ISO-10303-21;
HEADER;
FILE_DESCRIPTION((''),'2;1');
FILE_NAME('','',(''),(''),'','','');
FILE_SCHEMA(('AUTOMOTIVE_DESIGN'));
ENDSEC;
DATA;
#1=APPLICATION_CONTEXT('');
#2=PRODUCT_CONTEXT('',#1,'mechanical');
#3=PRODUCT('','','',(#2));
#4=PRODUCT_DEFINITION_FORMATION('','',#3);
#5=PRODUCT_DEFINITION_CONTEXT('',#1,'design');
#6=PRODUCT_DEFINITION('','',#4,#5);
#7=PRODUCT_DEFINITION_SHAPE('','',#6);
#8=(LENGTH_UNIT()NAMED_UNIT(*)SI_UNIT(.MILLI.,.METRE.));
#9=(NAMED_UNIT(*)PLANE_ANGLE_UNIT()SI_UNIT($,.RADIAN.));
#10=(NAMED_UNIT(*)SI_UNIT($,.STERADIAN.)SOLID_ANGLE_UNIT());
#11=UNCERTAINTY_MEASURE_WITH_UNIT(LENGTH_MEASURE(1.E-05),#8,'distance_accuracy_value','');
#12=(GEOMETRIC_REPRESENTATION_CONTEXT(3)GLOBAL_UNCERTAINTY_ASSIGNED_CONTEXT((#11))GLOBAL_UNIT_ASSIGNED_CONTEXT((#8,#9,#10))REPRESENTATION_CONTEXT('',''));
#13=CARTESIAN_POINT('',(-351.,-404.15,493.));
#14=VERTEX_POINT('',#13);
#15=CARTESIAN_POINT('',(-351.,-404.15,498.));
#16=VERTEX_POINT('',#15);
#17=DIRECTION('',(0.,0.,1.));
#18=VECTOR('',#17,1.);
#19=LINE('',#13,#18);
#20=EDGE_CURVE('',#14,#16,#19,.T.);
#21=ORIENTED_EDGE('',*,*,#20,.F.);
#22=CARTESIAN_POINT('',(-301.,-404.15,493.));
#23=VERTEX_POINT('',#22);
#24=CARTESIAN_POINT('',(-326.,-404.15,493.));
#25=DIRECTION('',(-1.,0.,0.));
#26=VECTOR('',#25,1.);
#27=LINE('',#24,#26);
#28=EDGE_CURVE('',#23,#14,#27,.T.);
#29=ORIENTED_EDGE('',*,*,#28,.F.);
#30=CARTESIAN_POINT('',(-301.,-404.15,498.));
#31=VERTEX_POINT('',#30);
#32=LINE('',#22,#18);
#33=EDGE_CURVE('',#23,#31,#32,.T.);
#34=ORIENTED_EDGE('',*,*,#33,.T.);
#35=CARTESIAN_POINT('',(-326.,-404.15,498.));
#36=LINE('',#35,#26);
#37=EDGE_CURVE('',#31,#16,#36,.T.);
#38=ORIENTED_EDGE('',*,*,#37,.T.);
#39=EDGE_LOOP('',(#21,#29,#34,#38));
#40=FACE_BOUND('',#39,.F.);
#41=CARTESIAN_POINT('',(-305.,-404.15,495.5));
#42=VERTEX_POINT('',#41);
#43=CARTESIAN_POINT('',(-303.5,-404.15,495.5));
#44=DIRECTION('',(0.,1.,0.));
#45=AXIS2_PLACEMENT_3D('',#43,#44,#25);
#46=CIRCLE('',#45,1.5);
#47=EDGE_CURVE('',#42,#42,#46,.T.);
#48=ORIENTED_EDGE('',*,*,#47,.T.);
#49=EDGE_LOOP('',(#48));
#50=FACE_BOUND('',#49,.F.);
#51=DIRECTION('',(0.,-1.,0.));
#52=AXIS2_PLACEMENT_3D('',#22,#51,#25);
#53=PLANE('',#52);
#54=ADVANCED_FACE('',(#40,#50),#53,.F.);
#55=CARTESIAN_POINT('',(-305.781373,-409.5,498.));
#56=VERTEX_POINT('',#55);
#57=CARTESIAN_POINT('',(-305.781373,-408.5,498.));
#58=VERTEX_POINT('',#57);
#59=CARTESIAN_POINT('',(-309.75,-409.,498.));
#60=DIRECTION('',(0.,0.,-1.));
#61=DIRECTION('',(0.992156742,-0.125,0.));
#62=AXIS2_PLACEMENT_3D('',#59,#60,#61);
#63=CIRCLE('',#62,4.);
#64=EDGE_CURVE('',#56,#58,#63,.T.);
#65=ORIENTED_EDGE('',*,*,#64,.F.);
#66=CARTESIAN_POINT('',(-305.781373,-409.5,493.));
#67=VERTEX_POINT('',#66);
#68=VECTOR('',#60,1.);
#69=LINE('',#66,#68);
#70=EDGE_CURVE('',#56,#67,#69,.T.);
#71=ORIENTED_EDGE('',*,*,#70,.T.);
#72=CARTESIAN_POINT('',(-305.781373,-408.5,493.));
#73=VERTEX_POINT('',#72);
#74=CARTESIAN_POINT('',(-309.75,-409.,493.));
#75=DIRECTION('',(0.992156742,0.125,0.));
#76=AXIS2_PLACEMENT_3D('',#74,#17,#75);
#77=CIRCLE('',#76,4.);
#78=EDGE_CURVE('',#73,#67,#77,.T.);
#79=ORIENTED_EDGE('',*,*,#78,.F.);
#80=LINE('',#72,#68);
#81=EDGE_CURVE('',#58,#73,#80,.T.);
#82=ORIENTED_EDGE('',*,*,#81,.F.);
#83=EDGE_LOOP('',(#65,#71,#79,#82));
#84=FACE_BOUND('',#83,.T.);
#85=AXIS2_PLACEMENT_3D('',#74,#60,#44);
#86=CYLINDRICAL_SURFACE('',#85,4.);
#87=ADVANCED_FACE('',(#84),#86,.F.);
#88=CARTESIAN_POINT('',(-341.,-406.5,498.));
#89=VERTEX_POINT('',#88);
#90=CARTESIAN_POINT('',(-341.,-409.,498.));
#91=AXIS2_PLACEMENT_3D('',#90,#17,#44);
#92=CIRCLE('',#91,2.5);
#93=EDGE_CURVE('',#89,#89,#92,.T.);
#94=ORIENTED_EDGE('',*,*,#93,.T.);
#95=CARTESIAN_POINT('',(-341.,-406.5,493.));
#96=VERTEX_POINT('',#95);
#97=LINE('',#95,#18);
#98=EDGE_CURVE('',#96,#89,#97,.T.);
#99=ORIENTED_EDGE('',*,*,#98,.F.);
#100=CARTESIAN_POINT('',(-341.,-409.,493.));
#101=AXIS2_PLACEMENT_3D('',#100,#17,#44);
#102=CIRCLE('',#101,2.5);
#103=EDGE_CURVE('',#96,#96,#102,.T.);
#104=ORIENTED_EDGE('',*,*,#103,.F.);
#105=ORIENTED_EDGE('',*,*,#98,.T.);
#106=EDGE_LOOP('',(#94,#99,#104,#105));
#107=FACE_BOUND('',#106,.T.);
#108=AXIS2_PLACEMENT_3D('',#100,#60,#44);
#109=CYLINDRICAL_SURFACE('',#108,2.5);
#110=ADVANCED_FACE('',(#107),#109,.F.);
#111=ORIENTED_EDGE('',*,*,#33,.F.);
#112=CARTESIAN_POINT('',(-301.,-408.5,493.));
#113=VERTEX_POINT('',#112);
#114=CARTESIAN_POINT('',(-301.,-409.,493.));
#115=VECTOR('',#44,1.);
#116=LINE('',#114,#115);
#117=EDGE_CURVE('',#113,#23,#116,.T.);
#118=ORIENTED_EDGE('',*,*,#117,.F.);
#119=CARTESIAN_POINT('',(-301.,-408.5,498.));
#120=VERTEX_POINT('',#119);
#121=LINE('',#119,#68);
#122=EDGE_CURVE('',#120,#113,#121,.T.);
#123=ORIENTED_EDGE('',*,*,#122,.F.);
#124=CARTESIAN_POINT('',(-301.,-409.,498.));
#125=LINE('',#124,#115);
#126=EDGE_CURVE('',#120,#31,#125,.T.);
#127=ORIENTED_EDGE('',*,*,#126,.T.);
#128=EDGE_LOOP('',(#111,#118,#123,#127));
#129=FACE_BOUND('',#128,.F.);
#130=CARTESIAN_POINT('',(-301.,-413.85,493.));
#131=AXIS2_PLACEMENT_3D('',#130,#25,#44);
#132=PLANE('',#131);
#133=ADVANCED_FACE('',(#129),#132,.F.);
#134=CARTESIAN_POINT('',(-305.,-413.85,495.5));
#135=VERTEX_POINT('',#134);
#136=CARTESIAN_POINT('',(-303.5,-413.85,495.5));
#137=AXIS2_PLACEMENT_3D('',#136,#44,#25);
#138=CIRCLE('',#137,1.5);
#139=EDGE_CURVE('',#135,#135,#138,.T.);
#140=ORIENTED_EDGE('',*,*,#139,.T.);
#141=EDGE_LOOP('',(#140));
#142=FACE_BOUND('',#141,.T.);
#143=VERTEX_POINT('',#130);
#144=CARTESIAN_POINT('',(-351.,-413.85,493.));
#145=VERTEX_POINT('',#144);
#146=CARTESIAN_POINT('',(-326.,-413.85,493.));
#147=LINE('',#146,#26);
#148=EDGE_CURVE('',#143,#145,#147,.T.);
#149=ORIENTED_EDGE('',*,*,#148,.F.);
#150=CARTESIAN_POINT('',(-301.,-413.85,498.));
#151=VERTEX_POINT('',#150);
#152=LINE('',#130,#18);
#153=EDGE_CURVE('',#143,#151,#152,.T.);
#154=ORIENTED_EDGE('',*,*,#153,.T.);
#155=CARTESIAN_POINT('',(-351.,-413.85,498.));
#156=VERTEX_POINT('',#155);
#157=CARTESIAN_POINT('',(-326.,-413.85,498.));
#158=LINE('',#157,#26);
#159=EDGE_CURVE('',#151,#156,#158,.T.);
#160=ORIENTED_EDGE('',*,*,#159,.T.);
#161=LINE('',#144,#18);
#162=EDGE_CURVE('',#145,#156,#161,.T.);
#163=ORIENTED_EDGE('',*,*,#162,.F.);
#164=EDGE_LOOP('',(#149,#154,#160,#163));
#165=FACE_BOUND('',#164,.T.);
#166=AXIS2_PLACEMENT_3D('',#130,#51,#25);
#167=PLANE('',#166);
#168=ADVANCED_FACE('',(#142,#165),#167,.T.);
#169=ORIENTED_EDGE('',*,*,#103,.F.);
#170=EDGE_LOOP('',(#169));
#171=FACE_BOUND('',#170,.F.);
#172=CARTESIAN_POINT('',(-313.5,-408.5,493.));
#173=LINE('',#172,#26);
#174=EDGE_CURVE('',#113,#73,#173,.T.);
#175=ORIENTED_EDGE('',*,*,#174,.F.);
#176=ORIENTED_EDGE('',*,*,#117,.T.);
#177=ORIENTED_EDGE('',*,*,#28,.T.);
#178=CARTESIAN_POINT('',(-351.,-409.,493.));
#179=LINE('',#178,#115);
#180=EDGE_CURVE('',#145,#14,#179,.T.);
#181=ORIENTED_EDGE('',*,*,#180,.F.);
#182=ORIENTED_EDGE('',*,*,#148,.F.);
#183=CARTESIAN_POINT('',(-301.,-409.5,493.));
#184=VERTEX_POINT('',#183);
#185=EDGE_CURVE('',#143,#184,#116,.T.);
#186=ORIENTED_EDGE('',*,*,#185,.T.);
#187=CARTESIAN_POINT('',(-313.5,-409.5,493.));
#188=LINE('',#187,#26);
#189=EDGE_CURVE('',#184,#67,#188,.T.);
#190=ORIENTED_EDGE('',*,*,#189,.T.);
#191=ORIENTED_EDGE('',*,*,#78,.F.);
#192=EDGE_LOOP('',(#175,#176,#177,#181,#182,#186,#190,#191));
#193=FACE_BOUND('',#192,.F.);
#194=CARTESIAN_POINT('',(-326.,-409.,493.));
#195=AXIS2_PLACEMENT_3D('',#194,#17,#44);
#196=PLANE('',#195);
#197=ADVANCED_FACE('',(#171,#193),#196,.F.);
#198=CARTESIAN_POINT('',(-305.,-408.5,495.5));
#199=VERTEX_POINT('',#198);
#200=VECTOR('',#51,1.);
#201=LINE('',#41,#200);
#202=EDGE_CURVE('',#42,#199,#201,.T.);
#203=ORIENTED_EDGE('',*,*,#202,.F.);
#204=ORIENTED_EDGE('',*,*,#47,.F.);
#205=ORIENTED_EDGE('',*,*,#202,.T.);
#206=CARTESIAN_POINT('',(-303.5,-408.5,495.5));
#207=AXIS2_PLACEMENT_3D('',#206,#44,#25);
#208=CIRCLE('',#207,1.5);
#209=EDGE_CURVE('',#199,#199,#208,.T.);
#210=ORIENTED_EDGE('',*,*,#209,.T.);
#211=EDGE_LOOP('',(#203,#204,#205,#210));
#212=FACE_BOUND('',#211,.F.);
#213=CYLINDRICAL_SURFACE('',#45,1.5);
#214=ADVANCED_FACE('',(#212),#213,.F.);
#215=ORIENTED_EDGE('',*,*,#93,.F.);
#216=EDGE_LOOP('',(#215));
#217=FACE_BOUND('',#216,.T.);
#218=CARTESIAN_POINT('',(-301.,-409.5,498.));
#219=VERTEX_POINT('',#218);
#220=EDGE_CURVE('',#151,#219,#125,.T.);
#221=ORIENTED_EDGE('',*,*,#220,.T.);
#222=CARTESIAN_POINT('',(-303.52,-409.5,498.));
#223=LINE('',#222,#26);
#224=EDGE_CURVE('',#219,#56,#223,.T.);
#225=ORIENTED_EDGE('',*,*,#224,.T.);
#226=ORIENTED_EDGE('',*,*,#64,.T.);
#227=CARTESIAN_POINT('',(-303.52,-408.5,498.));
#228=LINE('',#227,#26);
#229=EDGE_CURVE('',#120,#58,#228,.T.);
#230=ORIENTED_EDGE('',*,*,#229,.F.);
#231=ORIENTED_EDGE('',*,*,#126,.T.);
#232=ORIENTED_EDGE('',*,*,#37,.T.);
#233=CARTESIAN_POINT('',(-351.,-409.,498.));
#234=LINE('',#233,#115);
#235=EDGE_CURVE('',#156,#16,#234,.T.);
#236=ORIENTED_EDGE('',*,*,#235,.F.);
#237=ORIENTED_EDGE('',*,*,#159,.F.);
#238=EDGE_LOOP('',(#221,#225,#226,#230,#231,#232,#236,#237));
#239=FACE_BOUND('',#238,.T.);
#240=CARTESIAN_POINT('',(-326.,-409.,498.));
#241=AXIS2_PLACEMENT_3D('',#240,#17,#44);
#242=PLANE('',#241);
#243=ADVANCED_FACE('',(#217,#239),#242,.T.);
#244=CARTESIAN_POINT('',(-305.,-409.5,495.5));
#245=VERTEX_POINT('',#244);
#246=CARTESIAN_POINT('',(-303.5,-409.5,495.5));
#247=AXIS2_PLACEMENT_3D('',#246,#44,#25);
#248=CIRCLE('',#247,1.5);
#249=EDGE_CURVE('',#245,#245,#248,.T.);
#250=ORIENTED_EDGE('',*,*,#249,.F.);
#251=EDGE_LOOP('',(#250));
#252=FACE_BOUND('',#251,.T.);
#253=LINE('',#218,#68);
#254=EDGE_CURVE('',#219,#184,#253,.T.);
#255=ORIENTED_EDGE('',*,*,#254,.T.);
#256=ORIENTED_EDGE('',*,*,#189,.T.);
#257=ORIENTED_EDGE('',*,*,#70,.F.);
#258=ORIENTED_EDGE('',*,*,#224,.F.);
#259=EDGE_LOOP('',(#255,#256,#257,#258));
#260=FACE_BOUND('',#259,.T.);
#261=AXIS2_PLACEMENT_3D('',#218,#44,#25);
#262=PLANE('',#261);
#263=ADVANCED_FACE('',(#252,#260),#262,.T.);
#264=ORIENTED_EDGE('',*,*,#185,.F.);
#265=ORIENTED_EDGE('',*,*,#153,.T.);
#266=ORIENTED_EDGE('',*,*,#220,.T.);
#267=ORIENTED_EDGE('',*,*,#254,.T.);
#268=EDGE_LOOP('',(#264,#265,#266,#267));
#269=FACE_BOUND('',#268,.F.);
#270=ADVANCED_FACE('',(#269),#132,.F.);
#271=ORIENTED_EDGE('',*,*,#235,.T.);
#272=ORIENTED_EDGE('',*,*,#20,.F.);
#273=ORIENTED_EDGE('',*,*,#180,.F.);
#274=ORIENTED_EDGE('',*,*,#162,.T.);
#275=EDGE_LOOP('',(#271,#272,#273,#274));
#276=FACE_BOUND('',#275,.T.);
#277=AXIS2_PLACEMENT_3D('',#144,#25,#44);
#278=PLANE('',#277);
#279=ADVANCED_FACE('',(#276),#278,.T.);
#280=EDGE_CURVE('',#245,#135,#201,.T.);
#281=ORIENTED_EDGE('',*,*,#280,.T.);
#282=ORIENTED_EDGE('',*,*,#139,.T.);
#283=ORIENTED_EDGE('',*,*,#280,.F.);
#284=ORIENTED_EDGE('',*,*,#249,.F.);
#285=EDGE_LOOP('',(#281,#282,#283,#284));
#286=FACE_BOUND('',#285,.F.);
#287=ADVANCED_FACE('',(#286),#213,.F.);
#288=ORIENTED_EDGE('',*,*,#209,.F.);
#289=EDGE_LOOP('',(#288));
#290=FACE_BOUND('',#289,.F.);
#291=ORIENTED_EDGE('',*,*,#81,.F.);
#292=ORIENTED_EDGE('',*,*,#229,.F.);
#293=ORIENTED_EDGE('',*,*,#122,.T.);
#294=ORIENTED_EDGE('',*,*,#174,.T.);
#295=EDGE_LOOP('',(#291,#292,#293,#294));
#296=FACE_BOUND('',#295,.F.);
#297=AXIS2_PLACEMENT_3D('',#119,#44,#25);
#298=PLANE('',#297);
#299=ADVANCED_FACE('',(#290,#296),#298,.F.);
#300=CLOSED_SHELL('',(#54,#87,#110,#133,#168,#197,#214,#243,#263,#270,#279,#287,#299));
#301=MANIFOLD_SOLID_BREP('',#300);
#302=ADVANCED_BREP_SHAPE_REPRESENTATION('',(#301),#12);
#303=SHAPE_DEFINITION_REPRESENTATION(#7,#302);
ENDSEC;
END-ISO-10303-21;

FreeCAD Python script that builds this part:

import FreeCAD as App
import Part
import Sketcher
from FreeCAD import Vector
Q = App.Units.Quantity

doc = App.newDocument("Part")
params = doc.addObject("Spreadsheet::Sheet", "Params")
for row, (alias, value) in enumerate([
    ("sketch1_diameter", "8 mm"),
    ("sketch1_diameter2", "5 mm"),
    ("sketch1_height", "50 mm"),
    ("sketch1_width", "9.7 mm"),
    ("pad1_length", "5 mm"),
    ("sketch2_width", "1 mm"),
    ("sketch2_height", "5.04 mm"),
    ("sketch3_diameter", "3 mm"),
], start=1):
    params.set(f"A{row}", alias)
    params.set(f"B{row}", "=" + value)
    params.setAlias(f"B{row}", alias)

body = doc.addObject("PartDesign::Body", "Body")

sketch1 = doc.addObject("Sketcher::SketchObject", "Sketch")
body.addObject(sketch1)
sketch1.AttachmentSupport = (doc.XY_Plane, [""])
sketch1.MapMode = "FlatFace"
sketch1.addGeometry([
    Part.LineSegment(Vector(-4.8, 25, 0), Vector(-4.8, -25, 0)),
    Part.LineSegment(Vector(-4.8, -25, 0), Vector(4.8, -25, 0)),
    Part.LineSegment(Vector(4.8, -25, 0), Vector(4.8, 25, 0)),
    Part.LineSegment(Vector(4.8, 25, 0), Vector(-4.8, 25, 0)),
    Part.Circle(Vector(0, -16.2, 0), Vector(0, 0, 1), 4),
    Part.Circle(Vector(0, 15, 0), Vector(0, 0, 1), 2.5),
], False)
sketch1.addConstraint([
    Sketcher.Constraint("Coincident", 0, 2, 1, 1),
    Sketcher.Constraint("Coincident", 1, 2, 2, 1),
    Sketcher.Constraint("Coincident", 2, 2, 3, 1),
    Sketcher.Constraint("Coincident", 3, 2, 0, 1),
    Sketcher.Constraint("Vertical", 0),
    Sketcher.Constraint("Horizontal", 1),
    Sketcher.Constraint("Vertical", 2),
    Sketcher.Constraint("Horizontal", 3),
    Sketcher.Constraint("Symmetric", 0, 2, 2, 2, -1, 1),
    Sketcher.Constraint("PointOnObject", 4, 3, -2),
    Sketcher.Constraint("PointOnObject", 5, 3, -2),
    Sketcher.Constraint("Diameter", 4, Q("8 mm")),
    Sketcher.Constraint("Diameter", 5, Q("5 mm")),
    Sketcher.Constraint("DistanceY", 0, 2, 0, 1, Q("50 mm")),
    Sketcher.Constraint("DistanceX", 1, 1, 1, 2, Q("9.7 mm")),
    Sketcher.Constraint("DistanceY", -1, 1, 5, 3, Q("15 mm")),
    Sketcher.Constraint("DistanceY", 4, 3, -1, 1, Q("16.25 mm")),
])
sketch1.setExpression("Constraints[11]", "Params.sketch1_diameter")
sketch1.setExpression("Constraints[12]", "Params.sketch1_diameter2")
sketch1.setExpression("Constraints[13]", "Params.sketch1_height")
sketch1.setExpression("Constraints[14]", "Params.sketch1_width")
pad1 = doc.addObject("PartDesign::Pad", "Pad")
body.addObject(pad1)
pad1.Profile = sketch1
pad1.setExpression("Length", "Params.pad1_length")

sketch2 = doc.addObject("Sketcher::SketchObject", "Sketch001")
body.addObject(sketch2)
sketch2.AttachmentSupport = (doc.XY_Plane, [""])
sketch2.MapMode = "FlatFace"
sketch2.AttachmentOffset = App.Placement(Vector(0, 0, 5), App.Rotation())
sketch2.addGeometry([
    Part.LineSegment(Vector(-0.5, -20, 0), Vector(-0.5, -25, 0)),
    Part.LineSegment(Vector(-0.5, -25, 0), Vector(0.5, -25, 0)),
    Part.LineSegment(Vector(0.5, -25, 0), Vector(0.5, -20, 0)),
    Part.LineSegment(Vector(0.5, -20, 0), Vector(-0.5, -20, 0)),
], False)
sketch2.addConstraint([
    Sketcher.Constraint("Coincident", 0, 2, 1, 1),
    Sketcher.Constraint("Coincident", 1, 2, 2, 1),
    Sketcher.Constraint("Coincident", 2, 2, 3, 1),
    Sketcher.Constraint("Coincident", 3, 2, 0, 1),
    Sketcher.Constraint("Vertical", 0),
    Sketcher.Constraint("Horizontal", 1),
    Sketcher.Constraint("Vertical", 2),
    Sketcher.Constraint("Horizontal", 3),
    Sketcher.Constraint("DistanceX", 1, 1, 1, 2, Q("1 mm")),
    Sketcher.Constraint("DistanceY", 0, 2, -1, 1, Q("25 mm")),
    Sketcher.Constraint("DistanceY", 0, 2, 0, 1, Q("5.04 mm")),
    Sketcher.Constraint("DistanceX", 0, 2, -1, 1, Q("0.5 mm")),
])
sketch2.setExpression("Constraints[8]", "Params.sketch2_width")
sketch2.setExpression("Constraints[10]", "Params.sketch2_height")
pocket1 = doc.addObject("PartDesign::Pocket", "Pocket")
body.addObject(pocket1)
pocket1.Profile = sketch2
pocket1.Type = "ThroughAll"

sketch3 = doc.addObject("Sketcher::SketchObject", "Sketch002")
body.addObject(sketch3)
sketch3.AttachmentSupport = (doc.YZ_Plane, [""])
sketch3.MapMode = "FlatFace"
sketch3.AttachmentOffset = App.Placement(Vector(0, 0, 4.85), App.Rotation())
sketch3.addGeometry(Part.Circle(Vector(-22.5, 2.5, 0), Vector(0, 0, 1), 1.5), False)
sketch3.addConstraint([
    Sketcher.Constraint("Diameter", 0, Q("3 mm")),
    Sketcher.Constraint("DistanceX", 0, 3, -1, 1, Q("22.5 mm")),
    Sketcher.Constraint("DistanceY", -1, 1, 0, 3, Q("2.5 mm")),
])
sketch3.setExpression("Constraints[0]", "Params.sketch3_diameter")
pocket2 = doc.addObject("PartDesign::Pocket", "Pocket001")
body.addObject(pocket2)
pocket2.Profile = sketch3
pocket2.Type = "ThroughAll"
body2 = doc.addObject("PartDesign::Body", "Body001")
doc.recompute()

body.Placement = App.Placement(Vector(-326, 1, 493), App.Rotation(Vector(0, 0, 1), 90))
boolean = doc.addObject("PartDesign::Boolean", "Boolean")
body2.addObject(boolean)
boolean.Type = "Fuse"
boolean.addObjects([body])
body3 = doc.addObject("PartDesign::Body", "Body002")
doc.recompute()

body2.Placement = App.Placement(Vector(0, -410, 0), App.Rotation(Vector(0, 0, 1), 0))
boolean2 = doc.addObject("PartDesign::Boolean", "Boolean001")
body3.addObject(boolean2)
boolean2.Type = "Fuse"
boolean2.addObjects([body2])

doc.recompute()
